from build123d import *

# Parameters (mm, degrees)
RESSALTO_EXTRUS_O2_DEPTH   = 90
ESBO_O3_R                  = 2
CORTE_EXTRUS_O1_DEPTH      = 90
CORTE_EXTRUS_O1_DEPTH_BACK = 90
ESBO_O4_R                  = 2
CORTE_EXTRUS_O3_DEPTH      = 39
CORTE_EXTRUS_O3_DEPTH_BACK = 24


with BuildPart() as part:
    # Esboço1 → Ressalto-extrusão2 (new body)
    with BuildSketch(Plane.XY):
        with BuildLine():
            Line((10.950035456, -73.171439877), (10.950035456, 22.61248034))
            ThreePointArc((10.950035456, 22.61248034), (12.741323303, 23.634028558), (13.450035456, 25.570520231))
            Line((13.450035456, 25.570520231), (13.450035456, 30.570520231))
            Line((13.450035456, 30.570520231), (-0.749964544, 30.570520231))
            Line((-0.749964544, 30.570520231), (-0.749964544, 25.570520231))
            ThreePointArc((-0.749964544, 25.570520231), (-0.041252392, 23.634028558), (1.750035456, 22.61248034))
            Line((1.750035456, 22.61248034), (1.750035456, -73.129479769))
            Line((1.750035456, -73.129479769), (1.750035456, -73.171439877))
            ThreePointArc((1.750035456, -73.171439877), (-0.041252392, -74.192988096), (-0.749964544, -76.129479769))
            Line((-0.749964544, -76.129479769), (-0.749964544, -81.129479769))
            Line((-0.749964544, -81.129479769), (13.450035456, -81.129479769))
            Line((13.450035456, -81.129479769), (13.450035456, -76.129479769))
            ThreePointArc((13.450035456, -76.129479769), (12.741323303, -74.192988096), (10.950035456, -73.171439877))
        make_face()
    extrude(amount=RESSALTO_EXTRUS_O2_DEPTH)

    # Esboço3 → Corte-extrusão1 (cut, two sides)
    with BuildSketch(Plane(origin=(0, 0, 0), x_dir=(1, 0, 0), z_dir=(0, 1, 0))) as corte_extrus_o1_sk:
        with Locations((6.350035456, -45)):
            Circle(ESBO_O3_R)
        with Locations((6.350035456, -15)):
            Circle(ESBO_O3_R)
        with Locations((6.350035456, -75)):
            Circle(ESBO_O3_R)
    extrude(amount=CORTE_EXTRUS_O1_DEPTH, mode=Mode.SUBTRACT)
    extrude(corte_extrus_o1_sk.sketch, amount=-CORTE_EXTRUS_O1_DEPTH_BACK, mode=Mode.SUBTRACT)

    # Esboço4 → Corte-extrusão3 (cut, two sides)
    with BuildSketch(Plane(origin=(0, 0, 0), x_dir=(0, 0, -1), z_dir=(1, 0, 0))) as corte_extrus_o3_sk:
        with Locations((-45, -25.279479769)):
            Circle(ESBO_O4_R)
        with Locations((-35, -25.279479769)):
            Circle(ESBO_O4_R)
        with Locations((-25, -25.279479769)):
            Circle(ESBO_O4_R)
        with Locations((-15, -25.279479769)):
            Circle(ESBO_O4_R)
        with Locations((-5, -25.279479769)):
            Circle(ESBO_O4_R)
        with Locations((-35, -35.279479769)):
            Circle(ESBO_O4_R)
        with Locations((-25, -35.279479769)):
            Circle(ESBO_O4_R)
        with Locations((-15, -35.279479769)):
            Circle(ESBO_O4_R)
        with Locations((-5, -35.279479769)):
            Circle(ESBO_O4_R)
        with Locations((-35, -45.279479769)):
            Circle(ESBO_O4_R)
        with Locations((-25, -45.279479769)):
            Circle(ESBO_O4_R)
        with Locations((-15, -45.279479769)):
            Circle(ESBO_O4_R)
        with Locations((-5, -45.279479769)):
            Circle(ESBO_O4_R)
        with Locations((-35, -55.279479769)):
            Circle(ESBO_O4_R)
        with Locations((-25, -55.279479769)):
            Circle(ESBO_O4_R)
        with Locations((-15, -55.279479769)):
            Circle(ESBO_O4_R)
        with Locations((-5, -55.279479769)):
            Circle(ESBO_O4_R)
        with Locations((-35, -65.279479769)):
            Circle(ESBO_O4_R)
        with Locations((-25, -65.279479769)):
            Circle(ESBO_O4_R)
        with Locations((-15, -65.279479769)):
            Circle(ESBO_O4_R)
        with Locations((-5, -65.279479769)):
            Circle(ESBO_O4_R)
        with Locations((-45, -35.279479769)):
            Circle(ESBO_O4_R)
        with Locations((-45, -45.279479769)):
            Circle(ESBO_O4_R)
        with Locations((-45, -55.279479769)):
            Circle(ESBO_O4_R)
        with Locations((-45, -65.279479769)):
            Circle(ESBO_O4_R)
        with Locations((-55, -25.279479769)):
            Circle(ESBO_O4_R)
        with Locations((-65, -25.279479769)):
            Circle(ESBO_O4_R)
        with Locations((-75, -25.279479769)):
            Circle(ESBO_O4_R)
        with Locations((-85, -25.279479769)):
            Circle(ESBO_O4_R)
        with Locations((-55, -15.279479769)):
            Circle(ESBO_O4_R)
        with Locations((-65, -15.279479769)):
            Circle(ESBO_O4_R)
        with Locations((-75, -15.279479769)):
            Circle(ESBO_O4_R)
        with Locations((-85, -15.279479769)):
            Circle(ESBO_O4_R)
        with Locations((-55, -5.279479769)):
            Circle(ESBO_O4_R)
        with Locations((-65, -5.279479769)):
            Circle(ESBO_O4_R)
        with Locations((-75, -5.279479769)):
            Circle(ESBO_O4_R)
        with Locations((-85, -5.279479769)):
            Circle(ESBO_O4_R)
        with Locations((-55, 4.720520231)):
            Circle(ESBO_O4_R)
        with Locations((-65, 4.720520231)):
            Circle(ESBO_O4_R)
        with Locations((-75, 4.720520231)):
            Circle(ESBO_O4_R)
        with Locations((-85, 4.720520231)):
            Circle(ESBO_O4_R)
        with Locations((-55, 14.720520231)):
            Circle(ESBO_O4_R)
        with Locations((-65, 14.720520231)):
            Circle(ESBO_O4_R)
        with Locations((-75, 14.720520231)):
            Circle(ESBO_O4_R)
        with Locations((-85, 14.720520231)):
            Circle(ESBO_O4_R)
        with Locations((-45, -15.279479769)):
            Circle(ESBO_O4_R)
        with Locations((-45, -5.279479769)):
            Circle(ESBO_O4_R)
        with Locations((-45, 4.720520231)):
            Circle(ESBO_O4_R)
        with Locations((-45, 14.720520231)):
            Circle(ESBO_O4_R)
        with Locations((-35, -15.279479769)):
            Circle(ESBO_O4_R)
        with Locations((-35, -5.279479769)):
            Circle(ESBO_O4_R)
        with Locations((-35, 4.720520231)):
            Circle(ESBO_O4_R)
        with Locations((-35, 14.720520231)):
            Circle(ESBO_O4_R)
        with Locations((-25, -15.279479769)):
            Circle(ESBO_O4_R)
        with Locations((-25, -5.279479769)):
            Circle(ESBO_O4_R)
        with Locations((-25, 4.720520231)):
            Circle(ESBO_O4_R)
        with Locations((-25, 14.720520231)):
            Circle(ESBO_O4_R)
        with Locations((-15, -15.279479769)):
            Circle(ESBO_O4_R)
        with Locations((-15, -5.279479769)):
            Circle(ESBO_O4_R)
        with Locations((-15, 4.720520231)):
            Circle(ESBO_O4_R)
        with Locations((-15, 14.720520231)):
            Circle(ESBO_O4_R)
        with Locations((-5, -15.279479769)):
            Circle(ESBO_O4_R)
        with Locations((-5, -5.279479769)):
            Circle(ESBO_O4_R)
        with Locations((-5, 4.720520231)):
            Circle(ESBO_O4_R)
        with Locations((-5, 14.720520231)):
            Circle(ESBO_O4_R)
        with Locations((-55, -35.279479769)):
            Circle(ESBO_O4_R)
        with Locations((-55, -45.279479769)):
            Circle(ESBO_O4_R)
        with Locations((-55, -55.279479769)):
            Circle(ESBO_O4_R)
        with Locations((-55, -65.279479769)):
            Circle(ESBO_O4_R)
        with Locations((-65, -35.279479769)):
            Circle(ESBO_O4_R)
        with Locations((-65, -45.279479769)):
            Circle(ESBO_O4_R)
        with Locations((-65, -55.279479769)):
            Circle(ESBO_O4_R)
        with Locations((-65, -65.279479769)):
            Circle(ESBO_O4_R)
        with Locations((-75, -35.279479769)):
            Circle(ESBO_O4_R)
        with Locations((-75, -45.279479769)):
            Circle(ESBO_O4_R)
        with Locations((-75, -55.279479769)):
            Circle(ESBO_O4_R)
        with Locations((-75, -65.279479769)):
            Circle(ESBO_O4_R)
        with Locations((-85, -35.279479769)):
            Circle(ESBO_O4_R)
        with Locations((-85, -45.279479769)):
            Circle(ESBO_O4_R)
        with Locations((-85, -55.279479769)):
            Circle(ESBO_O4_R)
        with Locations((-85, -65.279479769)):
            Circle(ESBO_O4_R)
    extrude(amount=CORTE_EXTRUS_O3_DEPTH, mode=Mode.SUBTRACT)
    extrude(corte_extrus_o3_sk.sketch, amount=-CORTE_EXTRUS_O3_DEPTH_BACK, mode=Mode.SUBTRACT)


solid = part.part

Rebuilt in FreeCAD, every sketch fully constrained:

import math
import FreeCAD as App
import Part
import Sketcher
Q = App.Units.Quantity

doc = App.newDocument("Part")
body = doc.addObject("PartDesign::Body", "Body")

sketch1 = doc.addObject("Sketcher::SketchObject", "Sketch")
body.addObject(sketch1)
sketch1.AttachmentSupport = (doc.XY_Plane, [""])
sketch1.MapMode = "FlatFace"
sketch1.addGeometry([
    Part.LineSegment(App.Vector(10.950035, -73.17144, 0), App.Vector(10.950035, 22.61248, 0)),
    Part.ArcOfCircle(Part.Circle(App.Vector(10.450035, 25.57052, 0), App.Vector(0, 0, 1), 3), math.radians(-80.405932), math.radians(0)),
    Part.LineSegment(App.Vector(13.450035, 25.57052, 0), App.Vector(13.450035, 30.57052, 0)),
    Part.LineSegment(App.Vector(13.450035, 30.57052, 0), App.Vector(-0.749965, 30.57052, 0)),
    Part.LineSegment(App.Vector(-0.749965, 30.57052, 0), App.Vector(-0.749965, 25.57052, 0)),
    Part.ArcOfCircle(Part.Circle(App.Vector(2.250035, 25.57052, 0), App.Vector(0, 0, 1), 3), math.radians(180), math.radians(260.405932)),
    Part.LineSegment(App.Vector(1.750035, 22.61248, 0), App.Vector(1.750035, -73.17144, 0)),
    Part.ArcOfCircle(Part.Circle(App.Vector(2.250035, -76.12948, 0), App.Vector(0, 0, 1), 3), math.radians(99.594068), math.radians(180)),
    Part.LineSegment(App.Vector(-0.749965, -76.12948, 0), App.Vector(-0.749965, -81.12948, 0)),
    Part.LineSegment(App.Vector(-0.749965, -81.12948, 0), App.Vector(13.450035, -81.12948, 0)),
    Part.LineSegment(App.Vector(13.450035, -81.12948, 0), App.Vector(13.450035, -76.12948, 0)),
    Part.ArcOfCircle(Part.Circle(App.Vector(10.450035, -76.12948, 0), App.Vector(0, 0, 1), 3), math.radians(0), math.radians(80.405932)),
], False)
sketch1.addConstraint([
    Sketcher.Constraint("Coincident", 0, 2, 1, 1),
    Sketcher.Constraint("Tangent", 1, 2, 2, 1),
    Sketcher.Constraint("Coincident", 2, 2, 3, 1),
    Sketcher.Constraint("Coincident", 3, 2, 4, 1),
    Sketcher.Constraint("Tangent", 4, 2, 5, 1),
    Sketcher.Constraint("Coincident", 5, 2, 6, 1),
    Sketcher.Constraint("Coincident", 6, 2, 7, 1),
    Sketcher.Constraint("Tangent", 7, 2, 8, 1),
    Sketcher.Constraint("Coincident", 8, 2, 9, 1),
    Sketcher.Constraint("Coincident", 9, 2, 10, 1),
    Sketcher.Constraint("Tangent", 10, 2, 11, 1),
    Sketcher.Constraint("Coincident", 11, 2, 0, 1),
    Sketcher.Constraint("Vertical", 0),
    Sketcher.Constraint("Vertical", 2),
    Sketcher.Constraint("Horizontal", 3),
    Sketcher.Constraint("Vertical", 4),
    Sketcher.Constraint("Vertical", 6),
    Sketcher.Constraint("Vertical", 8),
    Sketcher.Constraint("Horizontal", 9),
    Sketcher.Constraint("Vertical", 10),
    Sketcher.Constraint("Equal", 1, 5),
    Sketcher.Constraint("Equal", 5, 7),
    Sketcher.Constraint("Equal", 7, 11),
    Sketcher.Constraint("Horizontal", 1, 3, 5, 3),
    Sketcher.Constraint("Horizontal", 7, 3, 11, 3),
    Sketcher.Constraint("Horizontal", 0, 2, 5, 2),
    Sketcher.Constraint("Horizontal", 6, 2, 11, 2),
    Sketcher.Constraint("Vertical", 5, 3, 7, 3),
    Sketcher.Constraint("Equal", 4, 8),
    Sketcher.Constraint("Radius", 1, Q("3 mm")),
    Sketcher.Constraint("DistanceY", 2, 1, 2, 2, Q("5 mm")),
    Sketcher.Constraint("DistanceX", 3, 2, 3, 1, Q("14.2 mm")),
    Sketcher.Constraint("DistanceY", 7, 3, 5, 3, Q("101.7 mm")),
    Sketcher.Constraint("DistanceX", 1, 3, 0, 2, Q("0.5 mm")),
    Sketcher.Constraint("DistanceY", -1, 1, 1, 3, Q("25.57052 mm")),
    Sketcher.Constraint("DistanceX", -1, 1, 1, 3, Q("10.450035 mm")),
])
pad1 = doc.addObject("PartDesign::Pad", "Pad")
body.addObject(pad1)
pad1.Profile = sketch1
pad1.Length = 90

sketch2 = doc.addObject("Sketcher::SketchObject", "Sketch001")
body.addObject(sketch2)
sketch2.AttachmentSupport = (doc.XZ_Plane, [""])
sketch2.MapMode = "FlatFace"
sketch2.addGeometry([
    Part.Circle(App.Vector(6.350035, 45, 0), App.Vector(0, 0, 1), 2),
    Part.Circle(App.Vector(6.350035, 15, 0), App.Vector(0, 0, 1), 2),
    Part.Circle(App.Vector(6.350035, 75, 0), App.Vector(0, 0, 1), 2),
], False)
sketch2.addConstraint([
    Sketcher.Constraint("Equal", 0, 1),
    Sketcher.Constraint("Equal", 1, 2),
    Sketcher.Constraint("Vertical", 0, 3, 1, 3),
    Sketcher.Constraint("Vertical", 1, 3, 2, 3),
    Sketcher.Constraint("Diameter", 0, Q("4 mm")),
    Sketcher.Constraint("DistanceY", -1, 1, 0, 3, Q("45 mm")),
    Sketcher.Constraint("DistanceY", -1, 1, 1, 3, Q("15 mm")),
    Sketcher.Constraint("DistanceY", -1, 1, 2, 3, Q("75 mm")),
    Sketcher.Constraint("DistanceX", -1, 1, 0, 3, Q("6.350035 mm")),
])
pocket1 = doc.addObject("PartDesign::Pocket", "Pocket")
body.addObject(pocket1)
pocket1.Profile = sketch2
pocket1.Type = "ThroughAll"
pocket1.Midplane = True

sketch3 = doc.addObject("Sketcher::SketchObject", "Sketch002")
body.addObject(sketch3)
sketch3.AttachmentSupport = (doc.YZ_Plane, [""])
sketch3.MapMode = "FlatFace"
sketch3.addGeometry([
    Part.Circle(App.Vector(-25.27948, 45, 0), App.Vector(0, 0, 1), 2),
    Part.Circle(App.Vector(-25.27948, 35, 0), App.Vector(0, 0, 1), 2),
    Part.Circle(App.Vector(-25.27948, 25, 0), App.Vector(0, 0, 1), 2),
    Part.Circle(App.Vector(-25.27948, 15, 0), App.Vector(0, 0, 1), 2),
    Part.Circle(App.Vector(-25.27948, 5, 0), App.Vector(0, 0, 1), 2),
    Part.Circle(App.Vector(-35.27948, 35, 0), App.Vector(0, 0, 1), 2),
    Part.Circle(App.Vector(-35.27948, 25, 0), App.Vector(0, 0, 1), 2),
    Part.Circle(App.Vector(-35.27948, 15, 0), App.Vector(0, 0, 1), 2),
    Part.Circle(App.Vector(-35.27948, 5, 0), App.Vector(0, 0, 1), 2),
    Part.Circle(App.Vector(-45.27948, 35, 0), App.Vector(0, 0, 1), 2),
    Part.Circle(App.Vector(-45.27948, 25, 0), App.Vector(0, 0, 1), 2),
    Part.Circle(App.Vector(-45.27948, 15, 0), App.Vector(0, 0, 1), 2),
    Part.Circle(App.Vector(-45.27948, 5, 0), App.Vector(0, 0, 1), 2),
    Part.Circle(App.Vector(-55.27948, 35, 0), App.Vector(0, 0, 1), 2),
    Part.Circle(App.Vector(-55.27948, 25, 0), App.Vector(0, 0, 1), 2),
    Part.Circle(App.Vector(-55.27948, 15, 0), App.Vector(0, 0, 1), 2),
    Part.Circle(App.Vector(-55.27948, 5, 0), App.Vector(0, 0, 1), 2),
    Part.Circle(App.Vector(-65.27948, 35, 0), App.Vector(0, 0, 1), 2),
    Part.Circle(App.Vector(-65.27948, 25, 0), App.Vector(0, 0, 1), 2),
    Part.Circle(App.Vector(-65.27948, 15, 0), App.Vector(0, 0, 1), 2),
    Part.Circle(App.Vector(-65.27948, 5, 0), App.Vector(0, 0, 1), 2),
    Part.Circle(App.Vector(-35.27948, 45, 0), App.Vector(0, 0, 1), 2),
    Part.Circle(App.Vector(-45.27948, 45, 0), App.Vector(0, 0, 1), 2),
    Part.Circle(App.Vector(-55.27948, 45, 0), App.Vector(0, 0, 1), 2),
    Part.Circle(App.Vector(-65.27948, 45, 0), App.Vector(0, 0, 1), 2),
    Part.Circle(App.Vector(-25.27948, 55, 0), App.Vector(0, 0, 1), 2),
    Part.Circle(App.Vector(-25.27948, 65, 0), App.Vector(0, 0, 1), 2),
    Part.Circle(App.Vector(-25.27948, 75, 0), App.Vector(0, 0, 1), 2),
    Part.Circle(App.Vector(-25.27948, 85, 0), App.Vector(0, 0, 1), 2),
    Part.Circle(App.Vector(-15.27948, 55, 0), App.Vector(0, 0, 1), 2),
    Part.Circle(App.Vector(-15.27948, 65, 0), App.Vector(0, 0, 1), 2),
    Part.Circle(App.Vector(-15.27948, 75, 0), App.Vector(0, 0, 1), 2),
    Part.Circle(App.Vector(-15.27948, 85, 0), App.Vector(0, 0, 1), 2),
    Part.Circle(App.Vector(-5.27948, 55, 0), App.Vector(0, 0, 1), 2),
    Part.Circle(App.Vector(-5.27948, 65, 0), App.Vector(0, 0, 1), 2),
    Part.Circle(App.Vector(-5.27948, 75, 0), App.Vector(0, 0, 1), 2),
    Part.Circle(App.Vector(-5.27948, 85, 0), App.Vector(0, 0, 1), 2),
    Part.Circle(App.Vector(4.72052, 55, 0), App.Vector(0, 0, 1), 2),
    Part.Circle(App.Vector(4.72052, 65, 0), App.Vector(0, 0, 1), 2),
    Part.Circle(App.Vector(4.72052, 75, 0), App.Vector(0, 0, 1), 2),
    Part.Circle(App.Vector(4.72052, 85, 0), App.Vector(0, 0, 1), 2),
    Part.Circle(App.Vector(14.72052, 55, 0), App.Vector(0, 0, 1), 2),
    Part.Circle(App.Vector(14.72052, 65, 0), App.Vector(0, 0, 1), 2),
    Part.Circle(App.Vector(14.72052, 75, 0), App.Vector(0, 0, 1), 2),
    Part.Circle(App.Vector(14.72052, 85, 0), App.Vector(0, 0, 1), 2),
    Part.Circle(App.Vector(-15.27948, 45, 0), App.Vector(0, 0, 1), 2),
    Part.Circle(App.Vector(-5.27948, 45, 0), App.Vector(0, 0, 1), 2),
    Part.Circle(App.Vector(4.72052, 45, 0), App.Vector(0, 0, 1), 2),
    Part.Circle(App.Vector(14.72052, 45, 0), App.Vector(0, 0, 1), 2),
    Part.Circle(App.Vector(-15.27948, 35, 0), App.Vector(0, 0, 1), 2),
    Part.Circle(App.Vector(-5.27948, 35, 0), App.Vector(0, 0, 1), 2),
    Part.Circle(App.Vector(4.72052, 35, 0), App.Vector(0, 0, 1), 2),
    Part.Circle(App.Vector(14.72052, 35, 0), App.Vector(0, 0, 1), 2),
    Part.Circle(App.Vector(-15.27948, 25, 0), App.Vector(0, 0, 1), 2),
    Part.Circle(App.Vector(-5.27948, 25, 0), App.Vector(0, 0, 1), 2),
    Part.Circle(App.Vector(4.72052, 25, 0), App.Vector(0, 0, 1), 2),
    Part.Circle(App.Vector(14.72052, 25, 0), App.Vector(0, 0, 1), 2),
    Part.Circle(App.Vector(-15.27948, 15, 0), App.Vector(0, 0, 1), 2),
    Part.Circle(App.Vector(-5.27948, 15, 0), App.Vector(0, 0, 1), 2),
    Part.Circle(App.Vector(4.72052, 15, 0), App.Vector(0, 0, 1), 2),
    Part.Circle(App.Vector(14.72052, 15, 0), App.Vector(0, 0, 1), 2),
    Part.Circle(App.Vector(-15.27948, 5, 0), App.Vector(0, 0, 1), 2),
    Part.Circle(App.Vector(-5.27948, 5, 0), App.Vector(0, 0, 1), 2),
    Part.Circle(App.Vector(4.72052, 5, 0), App.Vector(0, 0, 1), 2),
    Part.Circle(App.Vector(14.72052, 5, 0), App.Vector(0, 0, 1), 2),
    Part.Circle(App.Vector(-35.27948, 55, 0), App.Vector(0, 0, 1), 2),
    Part.Circle(App.Vector(-45.27948, 55, 0), App.Vector(0, 0, 1), 2),
    Part.Circle(App.Vector(-55.27948, 55, 0), App.Vector(0, 0, 1), 2),
    Part.Circle(App.Vector(-65.27948, 55, 0), App.Vector(0, 0, 1), 2),
    Part.Circle(App.Vector(-35.27948, 65, 0), App.Vector(0, 0, 1), 2),
    Part.Circle(App.Vector(-45.27948, 65, 0), App.Vector(0, 0, 1), 2),
    Part.Circle(App.Vector(-55.27948, 65, 0), App.Vector(0, 0, 1), 2),
    Part.Circle(App.Vector(-65.27948, 65, 0), App.Vector(0, 0, 1), 2),
    Part.Circle(App.Vector(-35.27948, 75, 0), App.Vector(0, 0, 1), 2),
    Part.Circle(App.Vector(-45.27948, 75, 0), App.Vector(0, 0, 1), 2),
    Part.Circle(App.Vector(-55.27948, 75, 0), App.Vector(0, 0, 1), 2),
    Part.Circle(App.Vector(-65.27948, 75, 0), App.Vector(0, 0, 1), 2),
    Part.Circle(App.Vector(-35.27948, 85, 0), App.Vector(0, 0, 1), 2),
    Part.Circle(App.Vector(-45.27948, 85, 0), App.Vector(0, 0, 1), 2),
    Part.Circle(App.Vector(-55.27948, 85, 0), App.Vector(0, 0, 1), 2),
    Part.Circle(App.Vector(-65.27948, 85, 0), App.Vector(0, 0, 1), 2),
], False)
sketch3.addConstraint([
    Sketcher.Constraint("Equal", 0, 1),
    Sketcher.Constraint("Equal", 1, 2),
    Sketcher.Constraint("Equal", 2, 3),
    Sketcher.Constraint("Equal", 3, 4),
    Sketcher.Constraint("Equal", 4, 5),
    Sketcher.Constraint("Equal", 5, 6),
    Sketcher.Constraint("Equal", 6, 7),
    Sketcher.Constraint("Equal", 7, 8),
    Sketcher.Constraint("Equal", 8, 9),
    Sketcher.Constraint("Equal", 9, 10),
    Sketcher.Constraint("Equal", 10, 11),
    Sketcher.Constraint("Equal", 11, 12),
    Sketcher.Constraint("Equal", 12, 13),
    Sketcher.Constraint("Equal", 13, 14),
    Sketcher.Constraint("Equal", 14, 15),
    Sketcher.Constraint("Equal", 15, 16),
    Sketcher.Constraint("Equal", 16, 17),
    Sketcher.Constraint("Equal", 17, 18),
    Sketcher.Constraint("Equal", 18, 19),
    Sketcher.Constraint("Equal", 19, 20),
    Sketcher.Constraint("Equal", 20, 21),
    Sketcher.Constraint("Equal", 21, 22),
    Sketcher.Constraint("Equal", 22, 23),
    Sketcher.Constraint("Equal", 23, 24),
    Sketcher.Constraint("Equal", 24, 25),
    Sketcher.Constraint("Equal", 25, 26),
    Sketcher.Constraint("Equal", 26, 27),
    Sketcher.Constraint("Equal", 27, 28),
    Sketcher.Constraint("Equal", 28, 29),
    Sketcher.Constraint("Equal", 29, 30),
    Sketcher.Constraint("Equal", 30, 31),
    Sketcher.Constraint("Equal", 31, 32),
    Sketcher.Constraint("Equal", 32, 33),
    Sketcher.Constraint("Equal", 33, 34),
    Sketcher.Constraint("Equal", 34, 35),
    Sketcher.Constraint("Equal", 35, 36),
    Sketcher.Constraint("Equal", 36, 37),
    Sketcher.Constraint("Equal", 37, 38),
    Sketcher.Constraint("Equal", 38, 39),
    Sketcher.Constraint("Equal", 39, 40),
    Sketcher.Constraint("Equal", 40, 41),
    Sketcher.Constraint("Equal", 41, 42),
    Sketcher.Constraint("Equal", 42, 43),
    Sketcher.Constraint("Equal", 43, 44),
    Sketcher.Constraint("Equal", 44, 45),
    Sketcher.Constraint("Equal", 45, 46),
    Sketcher.Constraint("Equal", 46, 47),
    Sketcher.Constraint("Equal", 47, 48),
    Sketcher.Constraint("Equal", 48, 49),
    Sketcher.Constraint("Equal", 49, 50),
    Sketcher.Constraint("Equal", 50, 51),
    Sketcher.Constraint("Equal", 51, 52),
    Sketcher.Constraint("Equal", 52, 53),
    Sketcher.Constraint("Equal", 53, 54),
    Sketcher.Constraint("Equal", 54, 55),
    Sketcher.Constraint("Equal", 55, 56),
    Sketcher.Constraint("Equal", 56, 57),
    Sketcher.Constraint("Equal", 57, 58),
    Sketcher.Constraint("Equal", 58, 59),
    Sketcher.Constraint("Equal", 59, 60),
    Sketcher.Constraint("Equal", 60, 61),
    Sketcher.Constraint("Equal", 61, 62),
    Sketcher.Constraint("Equal", 62, 63),
    Sketcher.Constraint("Equal", 63, 64),
    Sketcher.Constraint("Equal", 64, 65),
    Sketcher.Constraint("Equal", 65, 66),
    Sketcher.Constraint("Equal", 66, 67),
    Sketcher.Constraint("Equal", 67, 68),
    Sketcher.Constraint("Equal", 68, 69),
    Sketcher.Constraint("Equal", 69, 70),
    Sketcher.Constraint("Equal", 70, 71),
    Sketcher.Constraint("Equal", 71, 72),
    Sketcher.Constraint("Equal", 72, 73),
    Sketcher.Constraint("Equal", 73, 74),
    Sketcher.Constraint("Equal", 74, 75),
    Sketcher.Constraint("Equal", 75, 76),
    Sketcher.Constraint("Equal", 76, 77),
    Sketcher.Constraint("Equal", 77, 78),
    Sketcher.Constraint("Equal", 78, 79),
    Sketcher.Constraint("Equal", 79, 80),
    Sketcher.Constraint("Horizontal", 1, 3, 5, 3),
    Sketcher.Constraint("Horizontal", 2, 3, 6, 3),
    Sketcher.Constraint("Horizontal", 3, 3, 7, 3),
    Sketcher.Constraint("Horizontal", 4, 3, 8, 3),
    Sketcher.Constraint("Horizontal", 5, 3, 9, 3),
    Sketcher.Constraint("Horizontal", 6, 3, 10, 3),
    Sketcher.Constraint("Horizontal", 7, 3, 11, 3),
    Sketcher.Constraint("Horizontal", 8, 3, 12, 3),
    Sketcher.Constraint("Horizontal", 9, 3, 13, 3),
    Sketcher.Constraint("Horizontal", 10, 3, 14, 3),
    Sketcher.Constraint("Horizontal", 11, 3, 15, 3),
    Sketcher.Constraint("Horizontal", 12, 3, 16, 3),
    Sketcher.Constraint("Horizontal", 13, 3, 17, 3),
    Sketcher.Constraint("Horizontal", 14, 3, 18, 3),
    Sketcher.Constraint("Horizontal", 15, 3, 19, 3),
    Sketcher.Constraint("Horizontal", 16, 3, 20, 3),
    Sketcher.Constraint("Horizontal", 0, 3, 21, 3),
    Sketcher.Constraint("Horizontal", 21, 3, 22, 3),
    Sketcher.Constraint("Horizontal", 22, 3, 23, 3),
    Sketcher.Constraint("Horizontal", 23, 3, 24, 3),
    Sketcher.Constraint("Horizontal", 25, 3, 29, 3),
    Sketcher.Constraint("Horizontal", 26, 3, 30, 3),
    Sketcher.Constraint("Horizontal", 27, 3, 31, 3),
    Sketcher.Constraint("Horizontal", 28, 3, 32, 3),
    Sketcher.Constraint("Horizontal", 29, 3, 33, 3),
    Sketcher.Constraint("Horizontal", 30, 3, 34, 3),
    Sketcher.Constraint("Horizontal", 31, 3, 35, 3),
    Sketcher.Constraint("Horizontal", 32, 3, 36, 3),
    Sketcher.Constraint("Horizontal", 33, 3, 37, 3),
    Sketcher.Constraint("Horizontal", 34, 3, 38, 3),
    Sketcher.Constraint("Horizontal", 35, 3, 39, 3),
    Sketcher.Constraint("Horizontal", 36, 3, 40, 3),
    Sketcher.Constraint("Horizontal", 37, 3, 41, 3),
    Sketcher.Constraint("Horizontal", 38, 3, 42, 3),
    Sketcher.Constraint("Horizontal", 39, 3, 43, 3),
    Sketcher.Constraint("Horizontal", 40, 3, 44, 3),
    Sketcher.Constraint("Horizontal", 24, 3, 45, 3),
    Sketcher.Constraint("Horizontal", 45, 3, 46, 3),
    Sketcher.Constraint("Horizontal", 46, 3, 47, 3),
    Sketcher.Constraint("Horizontal", 47, 3, 48, 3),
    Sketcher.Constraint("Horizontal", 17, 3, 49, 3),
    Sketcher.Constraint("Horizontal", 49, 3, 50, 3),
    Sketcher.Constraint("Horizontal", 50, 3, 51, 3),
    Sketcher.Constraint("Horizontal", 51, 3, 52, 3),
    Sketcher.Constraint("Horizontal", 18, 3, 53, 3),
    Sketcher.Constraint("Horizontal", 53, 3, 54, 3),
    Sketcher.Constraint("Horizontal", 54, 3, 55, 3),
    Sketcher.Constraint("Horizontal", 55, 3, 56, 3),
    Sketcher.Constraint("Horizontal", 19, 3, 57, 3),
    Sketcher.Constraint("Horizontal", 57, 3, 58, 3),
    Sketcher.Constraint("Horizontal", 58, 3, 59, 3),
    Sketcher.Constraint("Horizontal", 59, 3, 60, 3),
    Sketcher.Constraint("Horizontal", 20, 3, 61, 3),
    Sketcher.Constraint("Horizontal", 61, 3, 62, 3),
    Sketcher.Constraint("Horizontal", 62, 3, 63, 3),
    Sketcher.Constraint("Horizontal", 63, 3, 64, 3),
    Sketcher.Constraint("Horizontal", 41, 3, 65, 3),
    Sketcher.Constraint("Horizontal", 65, 3, 66, 3),
    Sketcher.Constraint("Horizontal", 66, 3, 67, 3),
    Sketcher.Constraint("Horizontal", 67, 3, 68, 3),
    Sketcher.Constraint("Horizontal", 42, 3, 69, 3),
    Sketcher.Constraint("Horizontal", 69, 3, 70, 3),
    Sketcher.Constraint("Horizontal", 70, 3, 71, 3),
    Sketcher.Constraint("Horizontal", 71, 3, 72, 3),
    Sketcher.Constraint("Horizontal", 43, 3, 73, 3),
    Sketcher.Constraint("Horizontal", 73, 3, 74, 3),
    Sketcher.Constraint("Horizontal", 74, 3, 75, 3),
    Sketcher.Constraint("Horizontal", 75, 3, 76, 3),
    Sketcher.Constraint("Horizontal", 44, 3, 77, 3),
    Sketcher.Constraint("Horizontal", 77, 3, 78, 3),
    Sketcher.Constraint("Horizontal", 78, 3, 79, 3),
    Sketcher.Constraint("Horizontal", 79, 3, 80, 3),
    Sketcher.Constraint("Vertical", 0, 3, 1, 3),
    Sketcher.Constraint("Vertical", 1, 3, 2, 3),
    Sketcher.Constraint("Vertical", 2, 3, 3, 3),
    Sketcher.Constraint("Vertical", 3, 3, 4, 3),
    Sketcher.Constraint("Vertical", 5, 3, 6, 3),
    Sketcher.Constraint("Vertical", 6, 3, 7, 3),
    Sketcher.Constraint("Vertical", 7, 3, 8, 3),
    Sketcher.Constraint("Vertical", 9, 3, 10, 3),
    Sketcher.Constraint("Vertical", 10, 3, 11, 3),
    Sketcher.Constraint("Vertical", 11, 3, 12, 3),
    Sketcher.Constraint("Vertical", 13, 3, 14, 3),
    Sketcher.Constraint("Vertical", 14, 3, 15, 3),
    Sketcher.Constraint("Vertical", 15, 3, 16, 3),
    Sketcher.Constraint("Vertical", 17, 3, 18, 3),
    Sketcher.Constraint("Vertical", 18, 3, 19, 3),
    Sketcher.Constraint("Vertical", 19, 3, 20, 3),
    Sketcher.Constraint("Vertical", 8, 3, 21, 3),
    Sketcher.Constraint("Vertical", 12, 3, 22, 3),
    Sketcher.Constraint("Vertical", 16, 3, 23, 3),
    Sketcher.Constraint("Vertical", 20, 3, 24, 3),
    Sketcher.Constraint("Vertical", 4, 3, 25, 3),
    Sketcher.Constraint("Vertical", 25, 3, 26, 3),
    Sketcher.Constraint("Vertical", 26, 3, 27, 3),
    Sketcher.Constraint("Vertical", 27, 3, 28, 3),
    Sketcher.Constraint("Vertical", 29, 3, 30, 3),
    Sketcher.Constraint("Vertical", 30, 3, 31, 3),
    Sketcher.Constraint("Vertical", 31, 3, 32, 3),
    Sketcher.Constraint("Vertical", 33, 3, 34, 3),
    Sketcher.Constraint("Vertical", 34, 3, 35, 3),
    Sketcher.Constraint("Vertical", 35, 3, 36, 3),
    Sketcher.Constraint("Vertical", 37, 3, 38, 3),
    Sketcher.Constraint("Vertical", 38, 3, 39, 3),
    Sketcher.Constraint("Vertical", 39, 3, 40, 3),
    Sketcher.Constraint("Vertical", 41, 3, 42, 3),
    Sketcher.Constraint("Vertical", 42, 3, 43, 3),
    Sketcher.Constraint("Vertical", 43, 3, 44, 3),
    Sketcher.Constraint("Vertical", 32, 3, 45, 3),
    Sketcher.Constraint("Vertical", 36, 3, 46, 3),
    Sketcher.Constraint("Vertical", 40, 3, 47, 3),
    Sketcher.Constraint("Vertical", 44, 3, 48, 3),
    Sketcher.Constraint("Vertical", 45, 3, 49, 3),
    Sketcher.Constraint("Vertical", 46, 3, 50, 3),
    Sketcher.Constraint("Vertical", 47, 3, 51, 3),
    Sketcher.Constraint("Vertical", 48, 3, 52, 3),
    Sketcher.Constraint("Vertical", 49, 3, 53, 3),
    Sketcher.Constraint("Vertical", 50, 3, 54, 3),
    Sketcher.Constraint("Vertical", 51, 3, 55, 3),
    Sketcher.Constraint("Vertical", 52, 3, 56, 3),
    Sketcher.Constraint("Vertical", 53, 3, 57, 3),
    Sketcher.Constraint("Vertical", 54, 3, 58, 3),
    Sketcher.Constraint("Vertical", 55, 3, 59, 3),
    Sketcher.Constraint("Vertical", 56, 3, 60, 3),
    Sketcher.Constraint("Vertical", 57, 3, 61, 3),
    Sketcher.Constraint("Vertical", 58, 3, 62, 3),
    Sketcher.Constraint("Vertical", 59, 3, 63, 3),
    Sketcher.Constraint("Vertical", 60, 3, 64, 3),
    Sketcher.Constraint("Vertical", 21, 3, 65, 3),
    Sketcher.Constraint("Vertical", 22, 3, 66, 3),
    Sketcher.Constraint("Vertical", 23, 3, 67, 3),
    Sketcher.Constraint("Vertical", 24, 3, 68, 3),
    Sketcher.Constraint("Vertical", 65, 3, 69, 3),
    Sketcher.Constraint("Vertical", 66, 3, 70, 3),
    Sketcher.Constraint("Vertical", 67, 3, 71, 3),
    Sketcher.Constraint("Vertical", 68, 3, 72, 3),
    Sketcher.Constraint("Vertical", 69, 3, 73, 3),
    Sketcher.Constraint("Vertical", 70, 3, 74, 3),
    Sketcher.Constraint("Vertical", 71, 3, 75, 3),
    Sketcher.Constraint("Vertical", 72, 3, 76, 3),
    Sketcher.Constraint("Vertical", 73, 3, 77, 3),
    Sketcher.Constraint("Vertical", 74, 3, 78, 3),
    Sketcher.Constraint("Vertical", 75, 3, 79, 3),
    Sketcher.Constraint("Vertical", 76, 3, 80, 3),
    Sketcher.Constraint("Diameter", 0, Q("4 mm")),
    Sketcher.Constraint("DistanceY", -1, 1, 0, 3, Q("45 mm")),
    Sketcher.Constraint("DistanceY", -1, 1, 1, 3, Q("35 mm")),
    Sketcher.Constraint("DistanceY", -1, 1, 2, 3, Q("25 mm")),
    Sketcher.Constraint("DistanceY", -1, 1, 3, 3, Q("15 mm")),
    Sketcher.Constraint("DistanceY", -1, 1, 4, 3, Q("5 mm")),
    Sketcher.Constraint("DistanceY", -1, 1, 25, 3, Q("55 mm")),
    Sketcher.Constraint("DistanceY", -1, 1, 26, 3, Q("65 mm")),
    Sketcher.Constraint("DistanceY", -1, 1, 27, 3, Q("75 mm")),
    Sketcher.Constraint("DistanceY", -1, 1, 28, 3, Q("85 mm")),
    Sketcher.Constraint("DistanceX", 0, 3, -1, 1, Q("25.27948 mm")),
    Sketcher.Constraint("DistanceX", 5, 3, -1, 1, Q("35.27948 mm")),
    Sketcher.Constraint("DistanceX", 9, 3, -1, 1, Q("45.27948 mm")),
    Sketcher.Constraint("DistanceX", 13, 3, -1, 1, Q("55.27948 mm")),
    Sketcher.Constraint("DistanceX", 17, 3, -1, 1, Q("65.27948 mm")),
    Sketcher.Constraint("DistanceX", 29, 3, -1, 1, Q("15.27948 mm")),
    Sketcher.Constraint("DistanceX", 33, 3, -1, 1, Q("5.27948 mm")),
    Sketcher.Constraint("DistanceX", -1, 1, 37, 3, Q("4.72052 mm")),
    Sketcher.Constraint("DistanceX", -1, 1, 41, 3, Q("14.72052 mm")),
])
pocket2 = doc.addObject("PartDesign::Pocket", "Pocket001")
body.addObject(pocket2)
pocket2.Profile = sketch3
pocket2.Type = "ThroughAll"
pocket2.Midplane = True

doc.recompute()
